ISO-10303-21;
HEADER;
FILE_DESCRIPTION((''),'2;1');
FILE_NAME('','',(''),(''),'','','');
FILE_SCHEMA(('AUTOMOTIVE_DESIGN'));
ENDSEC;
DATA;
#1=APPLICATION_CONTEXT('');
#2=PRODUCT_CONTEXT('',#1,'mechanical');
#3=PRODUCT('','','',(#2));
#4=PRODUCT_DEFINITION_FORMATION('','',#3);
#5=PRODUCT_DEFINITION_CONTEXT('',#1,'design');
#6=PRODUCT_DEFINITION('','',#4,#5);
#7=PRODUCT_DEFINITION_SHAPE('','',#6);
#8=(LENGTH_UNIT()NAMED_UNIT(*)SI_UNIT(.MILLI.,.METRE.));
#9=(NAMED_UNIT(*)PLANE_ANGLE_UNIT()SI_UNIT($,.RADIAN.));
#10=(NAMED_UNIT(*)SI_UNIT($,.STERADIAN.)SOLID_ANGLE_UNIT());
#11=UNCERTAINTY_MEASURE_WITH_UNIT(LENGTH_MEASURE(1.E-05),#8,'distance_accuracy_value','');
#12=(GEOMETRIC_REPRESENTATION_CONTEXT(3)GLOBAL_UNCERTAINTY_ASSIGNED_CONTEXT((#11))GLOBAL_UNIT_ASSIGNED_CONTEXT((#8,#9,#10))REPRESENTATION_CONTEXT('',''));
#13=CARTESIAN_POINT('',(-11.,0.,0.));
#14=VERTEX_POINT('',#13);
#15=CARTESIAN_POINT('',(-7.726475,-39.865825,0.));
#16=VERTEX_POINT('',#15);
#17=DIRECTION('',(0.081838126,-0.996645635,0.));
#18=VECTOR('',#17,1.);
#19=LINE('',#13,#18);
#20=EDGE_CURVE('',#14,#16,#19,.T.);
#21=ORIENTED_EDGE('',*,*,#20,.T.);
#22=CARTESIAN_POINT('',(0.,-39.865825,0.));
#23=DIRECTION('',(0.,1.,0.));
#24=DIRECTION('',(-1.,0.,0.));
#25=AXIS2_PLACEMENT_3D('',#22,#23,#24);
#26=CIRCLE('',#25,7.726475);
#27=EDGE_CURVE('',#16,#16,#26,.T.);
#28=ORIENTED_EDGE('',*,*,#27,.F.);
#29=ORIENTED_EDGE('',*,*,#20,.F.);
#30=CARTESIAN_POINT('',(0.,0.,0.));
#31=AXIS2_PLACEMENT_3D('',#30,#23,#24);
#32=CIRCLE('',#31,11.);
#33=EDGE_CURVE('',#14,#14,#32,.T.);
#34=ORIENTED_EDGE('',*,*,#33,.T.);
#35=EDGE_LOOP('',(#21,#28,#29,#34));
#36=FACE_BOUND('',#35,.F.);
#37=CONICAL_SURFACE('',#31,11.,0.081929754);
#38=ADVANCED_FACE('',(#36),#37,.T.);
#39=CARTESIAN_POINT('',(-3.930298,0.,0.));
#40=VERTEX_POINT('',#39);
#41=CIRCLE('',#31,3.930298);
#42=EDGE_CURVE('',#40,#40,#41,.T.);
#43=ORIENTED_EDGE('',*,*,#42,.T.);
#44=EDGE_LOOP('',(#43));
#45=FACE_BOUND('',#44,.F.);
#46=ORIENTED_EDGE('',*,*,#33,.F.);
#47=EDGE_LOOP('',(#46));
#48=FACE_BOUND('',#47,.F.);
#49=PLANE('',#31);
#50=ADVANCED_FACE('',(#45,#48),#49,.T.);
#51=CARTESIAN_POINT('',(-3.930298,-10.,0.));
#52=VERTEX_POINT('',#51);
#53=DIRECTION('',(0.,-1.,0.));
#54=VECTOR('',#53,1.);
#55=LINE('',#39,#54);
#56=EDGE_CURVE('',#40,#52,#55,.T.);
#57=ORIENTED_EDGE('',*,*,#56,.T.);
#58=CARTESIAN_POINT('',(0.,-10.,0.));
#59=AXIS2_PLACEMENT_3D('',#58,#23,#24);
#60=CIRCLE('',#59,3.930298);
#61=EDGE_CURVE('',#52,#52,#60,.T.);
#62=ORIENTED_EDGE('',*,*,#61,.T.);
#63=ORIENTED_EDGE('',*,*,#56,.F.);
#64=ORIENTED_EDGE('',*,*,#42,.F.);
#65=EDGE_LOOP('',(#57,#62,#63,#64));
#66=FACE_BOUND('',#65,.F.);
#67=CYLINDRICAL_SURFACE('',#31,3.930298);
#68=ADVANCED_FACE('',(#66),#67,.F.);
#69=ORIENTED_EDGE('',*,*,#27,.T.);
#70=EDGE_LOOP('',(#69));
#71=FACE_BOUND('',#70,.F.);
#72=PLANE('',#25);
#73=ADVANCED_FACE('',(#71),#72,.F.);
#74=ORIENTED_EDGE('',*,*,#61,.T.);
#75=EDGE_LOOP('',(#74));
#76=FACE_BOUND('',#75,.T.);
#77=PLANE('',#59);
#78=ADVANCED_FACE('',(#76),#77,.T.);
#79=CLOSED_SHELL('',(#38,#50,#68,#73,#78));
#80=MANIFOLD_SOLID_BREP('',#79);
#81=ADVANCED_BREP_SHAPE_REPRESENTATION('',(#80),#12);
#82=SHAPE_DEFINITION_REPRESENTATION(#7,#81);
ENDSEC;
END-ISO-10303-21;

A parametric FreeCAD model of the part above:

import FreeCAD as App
import Part
import Sketcher
from FreeCAD import Vector
Q = App.Units.Quantity

doc = App.newDocument("Part")
body = doc.addObject("PartDesign::Body", "Body")

# Sketch on XY plane
sketch1 = doc.addObject("Sketcher::SketchObject", "Sketch")
body.addObject(sketch1)
sketch1.AttachmentSupport = (doc.XY_Plane, [""])
sketch1.MapMode = "FlatFace"
sketch1.addGeometry([
    Part.LineSegment(Vector(0, -39.865825, 0), Vector(0, 0, 0)),
    Part.LineSegment(Vector(0, 0, 0), Vector(-11, 0, 0)),
    Part.LineSegment(Vector(-11, 0, 0), Vector(-7.726475, -39.865825, 0)),
    Part.LineSegment(Vector(-7.726475, -39.865825, 0), Vector(0, -39.865825, 0)),
], False)
sketch1.addConstraint([
    Sketcher.Constraint("Coincident", 0, 2, 1, 1),
    Sketcher.Constraint("Coincident", 1, 2, 2, 1),
    Sketcher.Constraint("Coincident", 2, 2, 3, 1),
    Sketcher.Constraint("Coincident", 3, 2, 0, 1),
    Sketcher.Constraint("Vertical", 0),
    Sketcher.Constraint("Horizontal", 1),
    Sketcher.Constraint("Horizontal", 3),
    Sketcher.Constraint("Coincident", 0, 2, -1, 1),
    Sketcher.Constraint("DistanceX", 1, 2, 1, 1, Q("11 mm")),
    Sketcher.Constraint("Distance", 2, Q("40 mm")),
    Sketcher.Constraint("DistanceX", 3, 1, 3, 2, Q("7.726475 mm")),
])
revolution = doc.addObject("PartDesign::Revolution", "Revolution")
body.addObject(revolution)
revolution.Profile = sketch1
revolution.ReferenceAxis = (sketch1, ["V_Axis"])
revolution.Angle = 360

# Sketch on XZ plane
sketch2 = doc.addObject("Sketcher::SketchObject", "Sketch001")
body.addObject(sketch2)
sketch2.AttachmentSupport = (doc.XZ_Plane, [""])
sketch2.MapMode = "FlatFace"
sketch2.addGeometry(Part.Circle(Vector(0, 0, 0), Vector(0, 0, 1), 3.930298), False)
sketch2.addConstraint([
    Sketcher.Constraint("Coincident", 0, 3, -1, 1),
    Sketcher.Constraint("Diameter", 0, Q("7.860596 mm")),
])
pocket1 = doc.addObject("PartDesign::Pocket", "Pocket")
body.addObject(pocket1)
pocket1.Profile = sketch2
pocket1.Length = 10
pocket1.Reversed = True

doc.recompute()
